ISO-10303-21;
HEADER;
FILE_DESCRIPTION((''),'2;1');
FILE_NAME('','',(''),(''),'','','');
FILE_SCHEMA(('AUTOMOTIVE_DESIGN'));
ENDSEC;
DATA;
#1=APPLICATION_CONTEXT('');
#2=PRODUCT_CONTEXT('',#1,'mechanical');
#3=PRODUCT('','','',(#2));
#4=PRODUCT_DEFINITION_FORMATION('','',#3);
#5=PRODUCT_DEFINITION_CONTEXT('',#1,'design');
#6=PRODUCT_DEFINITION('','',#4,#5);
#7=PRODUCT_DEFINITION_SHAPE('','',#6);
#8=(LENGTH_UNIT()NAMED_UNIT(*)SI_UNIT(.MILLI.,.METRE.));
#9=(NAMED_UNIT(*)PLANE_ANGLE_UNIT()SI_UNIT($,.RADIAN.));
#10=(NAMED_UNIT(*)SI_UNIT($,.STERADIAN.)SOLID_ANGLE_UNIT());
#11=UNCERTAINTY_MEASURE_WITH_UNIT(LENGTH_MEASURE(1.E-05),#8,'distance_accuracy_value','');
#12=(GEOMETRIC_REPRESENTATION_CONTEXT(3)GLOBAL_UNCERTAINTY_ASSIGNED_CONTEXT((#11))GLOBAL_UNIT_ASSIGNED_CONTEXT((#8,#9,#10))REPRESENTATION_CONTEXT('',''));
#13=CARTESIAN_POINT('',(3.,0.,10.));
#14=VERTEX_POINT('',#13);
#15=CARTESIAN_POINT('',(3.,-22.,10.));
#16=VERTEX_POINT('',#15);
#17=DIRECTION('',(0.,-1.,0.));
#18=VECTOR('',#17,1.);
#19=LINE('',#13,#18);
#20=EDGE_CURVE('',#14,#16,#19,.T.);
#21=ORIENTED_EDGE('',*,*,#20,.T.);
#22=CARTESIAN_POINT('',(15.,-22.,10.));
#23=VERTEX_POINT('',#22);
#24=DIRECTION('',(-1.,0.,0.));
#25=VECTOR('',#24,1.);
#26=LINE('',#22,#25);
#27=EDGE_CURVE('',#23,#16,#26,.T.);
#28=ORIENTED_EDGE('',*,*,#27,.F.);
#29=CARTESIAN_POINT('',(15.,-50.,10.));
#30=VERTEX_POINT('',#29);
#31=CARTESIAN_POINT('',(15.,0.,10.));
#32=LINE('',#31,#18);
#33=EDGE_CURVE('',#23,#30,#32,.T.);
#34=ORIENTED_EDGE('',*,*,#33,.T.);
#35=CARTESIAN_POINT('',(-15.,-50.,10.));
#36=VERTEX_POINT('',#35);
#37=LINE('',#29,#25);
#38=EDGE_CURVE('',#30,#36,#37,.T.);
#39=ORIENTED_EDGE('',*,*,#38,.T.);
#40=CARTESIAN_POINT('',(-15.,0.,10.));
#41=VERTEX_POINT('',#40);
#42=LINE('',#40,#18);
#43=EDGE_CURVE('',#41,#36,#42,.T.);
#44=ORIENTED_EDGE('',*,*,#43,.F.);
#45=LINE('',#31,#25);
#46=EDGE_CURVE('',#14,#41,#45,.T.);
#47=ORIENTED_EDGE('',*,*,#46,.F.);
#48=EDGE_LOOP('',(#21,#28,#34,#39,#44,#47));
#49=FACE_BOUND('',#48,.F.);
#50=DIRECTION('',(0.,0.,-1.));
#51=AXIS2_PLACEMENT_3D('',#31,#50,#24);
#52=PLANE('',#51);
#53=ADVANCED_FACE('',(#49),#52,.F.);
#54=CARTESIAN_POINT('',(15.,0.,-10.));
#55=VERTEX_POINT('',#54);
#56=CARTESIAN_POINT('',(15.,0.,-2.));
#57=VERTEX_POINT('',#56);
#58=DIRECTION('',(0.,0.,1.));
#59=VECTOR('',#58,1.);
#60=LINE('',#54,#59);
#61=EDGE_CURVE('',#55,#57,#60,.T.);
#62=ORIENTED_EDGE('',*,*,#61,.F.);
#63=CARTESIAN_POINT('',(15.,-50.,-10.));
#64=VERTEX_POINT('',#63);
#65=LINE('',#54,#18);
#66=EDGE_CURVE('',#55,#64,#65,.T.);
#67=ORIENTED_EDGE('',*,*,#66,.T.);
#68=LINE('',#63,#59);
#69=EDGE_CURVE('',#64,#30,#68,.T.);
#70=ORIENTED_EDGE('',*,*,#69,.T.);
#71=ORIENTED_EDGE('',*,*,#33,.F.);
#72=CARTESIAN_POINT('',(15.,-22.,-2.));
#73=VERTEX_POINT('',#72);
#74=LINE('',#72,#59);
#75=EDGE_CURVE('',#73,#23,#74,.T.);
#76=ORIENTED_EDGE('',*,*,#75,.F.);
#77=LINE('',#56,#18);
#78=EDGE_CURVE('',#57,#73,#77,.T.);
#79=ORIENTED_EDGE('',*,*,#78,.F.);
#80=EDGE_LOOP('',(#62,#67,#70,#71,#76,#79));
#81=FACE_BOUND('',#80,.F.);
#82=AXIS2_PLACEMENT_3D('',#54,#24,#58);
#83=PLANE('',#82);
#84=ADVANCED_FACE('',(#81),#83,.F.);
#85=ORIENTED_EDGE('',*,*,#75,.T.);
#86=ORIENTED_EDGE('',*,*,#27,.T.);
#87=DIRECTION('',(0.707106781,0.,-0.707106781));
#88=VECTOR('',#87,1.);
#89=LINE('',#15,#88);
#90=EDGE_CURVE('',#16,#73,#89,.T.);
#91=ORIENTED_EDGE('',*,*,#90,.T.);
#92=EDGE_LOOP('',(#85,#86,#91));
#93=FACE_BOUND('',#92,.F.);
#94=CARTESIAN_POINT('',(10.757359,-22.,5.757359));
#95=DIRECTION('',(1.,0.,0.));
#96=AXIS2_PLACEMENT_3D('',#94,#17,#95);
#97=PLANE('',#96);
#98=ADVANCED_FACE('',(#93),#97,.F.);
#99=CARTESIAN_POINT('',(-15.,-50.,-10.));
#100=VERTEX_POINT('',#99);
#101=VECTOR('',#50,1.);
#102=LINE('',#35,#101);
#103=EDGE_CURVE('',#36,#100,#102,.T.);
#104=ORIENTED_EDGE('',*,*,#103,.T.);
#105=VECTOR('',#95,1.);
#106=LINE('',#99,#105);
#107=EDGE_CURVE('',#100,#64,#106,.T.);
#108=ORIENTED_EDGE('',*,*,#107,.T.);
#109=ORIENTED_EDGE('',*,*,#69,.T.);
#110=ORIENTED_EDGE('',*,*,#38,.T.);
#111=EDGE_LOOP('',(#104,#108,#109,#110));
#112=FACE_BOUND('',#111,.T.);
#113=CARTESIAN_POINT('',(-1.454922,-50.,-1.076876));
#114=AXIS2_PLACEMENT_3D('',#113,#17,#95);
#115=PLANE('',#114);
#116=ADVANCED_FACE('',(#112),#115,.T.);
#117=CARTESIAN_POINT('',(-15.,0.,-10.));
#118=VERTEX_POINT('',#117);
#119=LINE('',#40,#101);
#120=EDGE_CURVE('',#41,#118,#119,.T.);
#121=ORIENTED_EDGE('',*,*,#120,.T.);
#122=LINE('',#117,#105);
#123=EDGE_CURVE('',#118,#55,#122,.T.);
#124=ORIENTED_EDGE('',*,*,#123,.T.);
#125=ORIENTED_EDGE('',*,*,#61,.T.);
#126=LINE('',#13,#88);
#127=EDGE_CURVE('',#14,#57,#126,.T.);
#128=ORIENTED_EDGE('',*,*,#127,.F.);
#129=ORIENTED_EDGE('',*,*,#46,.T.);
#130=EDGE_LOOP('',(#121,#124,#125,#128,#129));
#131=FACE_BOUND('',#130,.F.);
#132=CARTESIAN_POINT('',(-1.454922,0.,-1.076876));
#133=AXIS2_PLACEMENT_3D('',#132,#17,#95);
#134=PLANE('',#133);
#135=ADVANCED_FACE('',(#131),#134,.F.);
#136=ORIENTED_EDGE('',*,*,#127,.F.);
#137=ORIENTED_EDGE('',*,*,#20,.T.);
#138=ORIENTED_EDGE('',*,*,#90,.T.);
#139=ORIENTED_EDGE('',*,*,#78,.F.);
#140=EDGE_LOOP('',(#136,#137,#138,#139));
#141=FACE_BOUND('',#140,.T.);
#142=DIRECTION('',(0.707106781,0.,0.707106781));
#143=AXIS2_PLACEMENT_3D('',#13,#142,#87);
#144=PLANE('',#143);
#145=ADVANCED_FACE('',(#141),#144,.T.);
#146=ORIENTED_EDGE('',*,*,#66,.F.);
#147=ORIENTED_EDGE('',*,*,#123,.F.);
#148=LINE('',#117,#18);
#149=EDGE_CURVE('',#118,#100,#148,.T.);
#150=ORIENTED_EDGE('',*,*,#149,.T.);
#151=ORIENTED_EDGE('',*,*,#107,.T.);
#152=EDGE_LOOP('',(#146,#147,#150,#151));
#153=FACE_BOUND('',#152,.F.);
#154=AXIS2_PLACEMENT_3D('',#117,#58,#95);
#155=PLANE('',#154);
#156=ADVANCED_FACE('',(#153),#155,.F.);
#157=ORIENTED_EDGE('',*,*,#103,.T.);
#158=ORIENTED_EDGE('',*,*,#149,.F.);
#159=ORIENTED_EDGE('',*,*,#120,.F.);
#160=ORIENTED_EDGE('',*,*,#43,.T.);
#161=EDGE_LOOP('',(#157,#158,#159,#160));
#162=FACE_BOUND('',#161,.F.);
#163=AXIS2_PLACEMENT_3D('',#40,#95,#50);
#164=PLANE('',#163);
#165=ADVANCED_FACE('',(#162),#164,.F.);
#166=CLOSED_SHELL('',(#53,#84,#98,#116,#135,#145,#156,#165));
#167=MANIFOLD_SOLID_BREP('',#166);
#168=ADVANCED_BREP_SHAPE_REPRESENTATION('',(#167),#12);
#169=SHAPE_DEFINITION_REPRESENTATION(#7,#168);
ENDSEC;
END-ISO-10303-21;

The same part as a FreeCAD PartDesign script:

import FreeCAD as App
import Part
import Sketcher

V = App.Vector
Q = App.Units.Quantity


def add_polygon(sketch, points):
    """Adds a closed chain of lines whose ends are joined by coincident constraints."""
    first, n = sketch.GeometryCount, len(points)
    for a, b in zip(points, points[1:] + points[:1]):
        sketch.addGeometry(Part.LineSegment(App.Vector(*a, 0), App.Vector(*b, 0)), False)
    for i in range(n):
        sketch.addConstraint(Sketcher.Constraint("Coincident", first + i, 2, first + (i + 1) % n, 1))

doc = App.newDocument("Part")
params = doc.addObject("Spreadsheet::Sheet", "Params")
for row, (alias, value) in enumerate([
    ("sketch1_width", "30 mm"),
    ("sketch1_height", "20 mm"),
    ("pad1_length", "50 mm"),
    ("sketch2_width", "12 mm"),
    ("pocket1_length", "22 mm"),
], start=1):
    params.set(f"A{row}", alias)
    params.set(f"B{row}", "=" + value)
    params.setAlias(f"B{row}", alias)

body = doc.addObject("PartDesign::Body", "Body")

# Sketch on XZ plane
sketch1 = body.newObject("Sketcher::SketchObject", "Sketch")
sketch1.AttachmentSupport = (doc.getObject("XZ_Plane"), [""])
sketch1.MapMode = "FlatFace"
add_polygon(sketch1, [(-15, -10), (15, -10), (15, 10), (-15, 10)])  # lines 0-3
sketch1.addConstraint([
    Sketcher.Constraint("Horizontal", 0),
    Sketcher.Constraint("Vertical", 1),
    Sketcher.Constraint("Horizontal", 2),
    Sketcher.Constraint("Vertical", 3),
    Sketcher.Constraint("Symmetric", 0, 2, 2, 2, -1, 1),
    Sketcher.Constraint("DistanceX", 0, 1, 0, 2, Q("30 mm")),
    Sketcher.Constraint("DistanceY", 1, 1, 1, 2, Q("20 mm")),
])
sketch1.setExpression("Constraints[9]", "Params.sketch1_width")
sketch1.setExpression("Constraints[10]", "Params.sketch1_height")
pad1 = body.newObject("PartDesign::Pad", "Pad")
pad1.Profile = sketch1
pad1.setExpression("Length", "Params.pad1_length")

# Sketch on XZ plane
sketch2 = body.newObject("Sketcher::SketchObject", "Sketch001")
sketch2.AttachmentSupport = (doc.getObject("XZ_Plane"), [""])
sketch2.MapMode = "FlatFace"
add_polygon(sketch2, [(3, 10), (15, -2), (15, 10)])  # lines 0-2
sketch2.addConstraint([
    Sketcher.Constraint("Vertical", 1),
    Sketcher.Constraint("Horizontal", 2),
    Sketcher.Constraint("Equal", 2, 1),
    Sketcher.Constraint("DistanceX", 2, 2, 2, 1, Q("12 mm")),
    Sketcher.Constraint("DistanceX", -1, 1, 0, 2, Q("15 mm")),
    Sketcher.Constraint("DistanceY", 0, 2, -1, 1, Q("2 mm")),
])
sketch2.setExpression("Constraints[6]", "Params.sketch2_width")
pocket1 = body.newObject("PartDesign::Pocket", "Pocket")
pocket1.Profile = sketch2
pocket1.setExpression("Length", "Params.pocket1_length")
pocket1.Reversed = True

doc.recompute()
